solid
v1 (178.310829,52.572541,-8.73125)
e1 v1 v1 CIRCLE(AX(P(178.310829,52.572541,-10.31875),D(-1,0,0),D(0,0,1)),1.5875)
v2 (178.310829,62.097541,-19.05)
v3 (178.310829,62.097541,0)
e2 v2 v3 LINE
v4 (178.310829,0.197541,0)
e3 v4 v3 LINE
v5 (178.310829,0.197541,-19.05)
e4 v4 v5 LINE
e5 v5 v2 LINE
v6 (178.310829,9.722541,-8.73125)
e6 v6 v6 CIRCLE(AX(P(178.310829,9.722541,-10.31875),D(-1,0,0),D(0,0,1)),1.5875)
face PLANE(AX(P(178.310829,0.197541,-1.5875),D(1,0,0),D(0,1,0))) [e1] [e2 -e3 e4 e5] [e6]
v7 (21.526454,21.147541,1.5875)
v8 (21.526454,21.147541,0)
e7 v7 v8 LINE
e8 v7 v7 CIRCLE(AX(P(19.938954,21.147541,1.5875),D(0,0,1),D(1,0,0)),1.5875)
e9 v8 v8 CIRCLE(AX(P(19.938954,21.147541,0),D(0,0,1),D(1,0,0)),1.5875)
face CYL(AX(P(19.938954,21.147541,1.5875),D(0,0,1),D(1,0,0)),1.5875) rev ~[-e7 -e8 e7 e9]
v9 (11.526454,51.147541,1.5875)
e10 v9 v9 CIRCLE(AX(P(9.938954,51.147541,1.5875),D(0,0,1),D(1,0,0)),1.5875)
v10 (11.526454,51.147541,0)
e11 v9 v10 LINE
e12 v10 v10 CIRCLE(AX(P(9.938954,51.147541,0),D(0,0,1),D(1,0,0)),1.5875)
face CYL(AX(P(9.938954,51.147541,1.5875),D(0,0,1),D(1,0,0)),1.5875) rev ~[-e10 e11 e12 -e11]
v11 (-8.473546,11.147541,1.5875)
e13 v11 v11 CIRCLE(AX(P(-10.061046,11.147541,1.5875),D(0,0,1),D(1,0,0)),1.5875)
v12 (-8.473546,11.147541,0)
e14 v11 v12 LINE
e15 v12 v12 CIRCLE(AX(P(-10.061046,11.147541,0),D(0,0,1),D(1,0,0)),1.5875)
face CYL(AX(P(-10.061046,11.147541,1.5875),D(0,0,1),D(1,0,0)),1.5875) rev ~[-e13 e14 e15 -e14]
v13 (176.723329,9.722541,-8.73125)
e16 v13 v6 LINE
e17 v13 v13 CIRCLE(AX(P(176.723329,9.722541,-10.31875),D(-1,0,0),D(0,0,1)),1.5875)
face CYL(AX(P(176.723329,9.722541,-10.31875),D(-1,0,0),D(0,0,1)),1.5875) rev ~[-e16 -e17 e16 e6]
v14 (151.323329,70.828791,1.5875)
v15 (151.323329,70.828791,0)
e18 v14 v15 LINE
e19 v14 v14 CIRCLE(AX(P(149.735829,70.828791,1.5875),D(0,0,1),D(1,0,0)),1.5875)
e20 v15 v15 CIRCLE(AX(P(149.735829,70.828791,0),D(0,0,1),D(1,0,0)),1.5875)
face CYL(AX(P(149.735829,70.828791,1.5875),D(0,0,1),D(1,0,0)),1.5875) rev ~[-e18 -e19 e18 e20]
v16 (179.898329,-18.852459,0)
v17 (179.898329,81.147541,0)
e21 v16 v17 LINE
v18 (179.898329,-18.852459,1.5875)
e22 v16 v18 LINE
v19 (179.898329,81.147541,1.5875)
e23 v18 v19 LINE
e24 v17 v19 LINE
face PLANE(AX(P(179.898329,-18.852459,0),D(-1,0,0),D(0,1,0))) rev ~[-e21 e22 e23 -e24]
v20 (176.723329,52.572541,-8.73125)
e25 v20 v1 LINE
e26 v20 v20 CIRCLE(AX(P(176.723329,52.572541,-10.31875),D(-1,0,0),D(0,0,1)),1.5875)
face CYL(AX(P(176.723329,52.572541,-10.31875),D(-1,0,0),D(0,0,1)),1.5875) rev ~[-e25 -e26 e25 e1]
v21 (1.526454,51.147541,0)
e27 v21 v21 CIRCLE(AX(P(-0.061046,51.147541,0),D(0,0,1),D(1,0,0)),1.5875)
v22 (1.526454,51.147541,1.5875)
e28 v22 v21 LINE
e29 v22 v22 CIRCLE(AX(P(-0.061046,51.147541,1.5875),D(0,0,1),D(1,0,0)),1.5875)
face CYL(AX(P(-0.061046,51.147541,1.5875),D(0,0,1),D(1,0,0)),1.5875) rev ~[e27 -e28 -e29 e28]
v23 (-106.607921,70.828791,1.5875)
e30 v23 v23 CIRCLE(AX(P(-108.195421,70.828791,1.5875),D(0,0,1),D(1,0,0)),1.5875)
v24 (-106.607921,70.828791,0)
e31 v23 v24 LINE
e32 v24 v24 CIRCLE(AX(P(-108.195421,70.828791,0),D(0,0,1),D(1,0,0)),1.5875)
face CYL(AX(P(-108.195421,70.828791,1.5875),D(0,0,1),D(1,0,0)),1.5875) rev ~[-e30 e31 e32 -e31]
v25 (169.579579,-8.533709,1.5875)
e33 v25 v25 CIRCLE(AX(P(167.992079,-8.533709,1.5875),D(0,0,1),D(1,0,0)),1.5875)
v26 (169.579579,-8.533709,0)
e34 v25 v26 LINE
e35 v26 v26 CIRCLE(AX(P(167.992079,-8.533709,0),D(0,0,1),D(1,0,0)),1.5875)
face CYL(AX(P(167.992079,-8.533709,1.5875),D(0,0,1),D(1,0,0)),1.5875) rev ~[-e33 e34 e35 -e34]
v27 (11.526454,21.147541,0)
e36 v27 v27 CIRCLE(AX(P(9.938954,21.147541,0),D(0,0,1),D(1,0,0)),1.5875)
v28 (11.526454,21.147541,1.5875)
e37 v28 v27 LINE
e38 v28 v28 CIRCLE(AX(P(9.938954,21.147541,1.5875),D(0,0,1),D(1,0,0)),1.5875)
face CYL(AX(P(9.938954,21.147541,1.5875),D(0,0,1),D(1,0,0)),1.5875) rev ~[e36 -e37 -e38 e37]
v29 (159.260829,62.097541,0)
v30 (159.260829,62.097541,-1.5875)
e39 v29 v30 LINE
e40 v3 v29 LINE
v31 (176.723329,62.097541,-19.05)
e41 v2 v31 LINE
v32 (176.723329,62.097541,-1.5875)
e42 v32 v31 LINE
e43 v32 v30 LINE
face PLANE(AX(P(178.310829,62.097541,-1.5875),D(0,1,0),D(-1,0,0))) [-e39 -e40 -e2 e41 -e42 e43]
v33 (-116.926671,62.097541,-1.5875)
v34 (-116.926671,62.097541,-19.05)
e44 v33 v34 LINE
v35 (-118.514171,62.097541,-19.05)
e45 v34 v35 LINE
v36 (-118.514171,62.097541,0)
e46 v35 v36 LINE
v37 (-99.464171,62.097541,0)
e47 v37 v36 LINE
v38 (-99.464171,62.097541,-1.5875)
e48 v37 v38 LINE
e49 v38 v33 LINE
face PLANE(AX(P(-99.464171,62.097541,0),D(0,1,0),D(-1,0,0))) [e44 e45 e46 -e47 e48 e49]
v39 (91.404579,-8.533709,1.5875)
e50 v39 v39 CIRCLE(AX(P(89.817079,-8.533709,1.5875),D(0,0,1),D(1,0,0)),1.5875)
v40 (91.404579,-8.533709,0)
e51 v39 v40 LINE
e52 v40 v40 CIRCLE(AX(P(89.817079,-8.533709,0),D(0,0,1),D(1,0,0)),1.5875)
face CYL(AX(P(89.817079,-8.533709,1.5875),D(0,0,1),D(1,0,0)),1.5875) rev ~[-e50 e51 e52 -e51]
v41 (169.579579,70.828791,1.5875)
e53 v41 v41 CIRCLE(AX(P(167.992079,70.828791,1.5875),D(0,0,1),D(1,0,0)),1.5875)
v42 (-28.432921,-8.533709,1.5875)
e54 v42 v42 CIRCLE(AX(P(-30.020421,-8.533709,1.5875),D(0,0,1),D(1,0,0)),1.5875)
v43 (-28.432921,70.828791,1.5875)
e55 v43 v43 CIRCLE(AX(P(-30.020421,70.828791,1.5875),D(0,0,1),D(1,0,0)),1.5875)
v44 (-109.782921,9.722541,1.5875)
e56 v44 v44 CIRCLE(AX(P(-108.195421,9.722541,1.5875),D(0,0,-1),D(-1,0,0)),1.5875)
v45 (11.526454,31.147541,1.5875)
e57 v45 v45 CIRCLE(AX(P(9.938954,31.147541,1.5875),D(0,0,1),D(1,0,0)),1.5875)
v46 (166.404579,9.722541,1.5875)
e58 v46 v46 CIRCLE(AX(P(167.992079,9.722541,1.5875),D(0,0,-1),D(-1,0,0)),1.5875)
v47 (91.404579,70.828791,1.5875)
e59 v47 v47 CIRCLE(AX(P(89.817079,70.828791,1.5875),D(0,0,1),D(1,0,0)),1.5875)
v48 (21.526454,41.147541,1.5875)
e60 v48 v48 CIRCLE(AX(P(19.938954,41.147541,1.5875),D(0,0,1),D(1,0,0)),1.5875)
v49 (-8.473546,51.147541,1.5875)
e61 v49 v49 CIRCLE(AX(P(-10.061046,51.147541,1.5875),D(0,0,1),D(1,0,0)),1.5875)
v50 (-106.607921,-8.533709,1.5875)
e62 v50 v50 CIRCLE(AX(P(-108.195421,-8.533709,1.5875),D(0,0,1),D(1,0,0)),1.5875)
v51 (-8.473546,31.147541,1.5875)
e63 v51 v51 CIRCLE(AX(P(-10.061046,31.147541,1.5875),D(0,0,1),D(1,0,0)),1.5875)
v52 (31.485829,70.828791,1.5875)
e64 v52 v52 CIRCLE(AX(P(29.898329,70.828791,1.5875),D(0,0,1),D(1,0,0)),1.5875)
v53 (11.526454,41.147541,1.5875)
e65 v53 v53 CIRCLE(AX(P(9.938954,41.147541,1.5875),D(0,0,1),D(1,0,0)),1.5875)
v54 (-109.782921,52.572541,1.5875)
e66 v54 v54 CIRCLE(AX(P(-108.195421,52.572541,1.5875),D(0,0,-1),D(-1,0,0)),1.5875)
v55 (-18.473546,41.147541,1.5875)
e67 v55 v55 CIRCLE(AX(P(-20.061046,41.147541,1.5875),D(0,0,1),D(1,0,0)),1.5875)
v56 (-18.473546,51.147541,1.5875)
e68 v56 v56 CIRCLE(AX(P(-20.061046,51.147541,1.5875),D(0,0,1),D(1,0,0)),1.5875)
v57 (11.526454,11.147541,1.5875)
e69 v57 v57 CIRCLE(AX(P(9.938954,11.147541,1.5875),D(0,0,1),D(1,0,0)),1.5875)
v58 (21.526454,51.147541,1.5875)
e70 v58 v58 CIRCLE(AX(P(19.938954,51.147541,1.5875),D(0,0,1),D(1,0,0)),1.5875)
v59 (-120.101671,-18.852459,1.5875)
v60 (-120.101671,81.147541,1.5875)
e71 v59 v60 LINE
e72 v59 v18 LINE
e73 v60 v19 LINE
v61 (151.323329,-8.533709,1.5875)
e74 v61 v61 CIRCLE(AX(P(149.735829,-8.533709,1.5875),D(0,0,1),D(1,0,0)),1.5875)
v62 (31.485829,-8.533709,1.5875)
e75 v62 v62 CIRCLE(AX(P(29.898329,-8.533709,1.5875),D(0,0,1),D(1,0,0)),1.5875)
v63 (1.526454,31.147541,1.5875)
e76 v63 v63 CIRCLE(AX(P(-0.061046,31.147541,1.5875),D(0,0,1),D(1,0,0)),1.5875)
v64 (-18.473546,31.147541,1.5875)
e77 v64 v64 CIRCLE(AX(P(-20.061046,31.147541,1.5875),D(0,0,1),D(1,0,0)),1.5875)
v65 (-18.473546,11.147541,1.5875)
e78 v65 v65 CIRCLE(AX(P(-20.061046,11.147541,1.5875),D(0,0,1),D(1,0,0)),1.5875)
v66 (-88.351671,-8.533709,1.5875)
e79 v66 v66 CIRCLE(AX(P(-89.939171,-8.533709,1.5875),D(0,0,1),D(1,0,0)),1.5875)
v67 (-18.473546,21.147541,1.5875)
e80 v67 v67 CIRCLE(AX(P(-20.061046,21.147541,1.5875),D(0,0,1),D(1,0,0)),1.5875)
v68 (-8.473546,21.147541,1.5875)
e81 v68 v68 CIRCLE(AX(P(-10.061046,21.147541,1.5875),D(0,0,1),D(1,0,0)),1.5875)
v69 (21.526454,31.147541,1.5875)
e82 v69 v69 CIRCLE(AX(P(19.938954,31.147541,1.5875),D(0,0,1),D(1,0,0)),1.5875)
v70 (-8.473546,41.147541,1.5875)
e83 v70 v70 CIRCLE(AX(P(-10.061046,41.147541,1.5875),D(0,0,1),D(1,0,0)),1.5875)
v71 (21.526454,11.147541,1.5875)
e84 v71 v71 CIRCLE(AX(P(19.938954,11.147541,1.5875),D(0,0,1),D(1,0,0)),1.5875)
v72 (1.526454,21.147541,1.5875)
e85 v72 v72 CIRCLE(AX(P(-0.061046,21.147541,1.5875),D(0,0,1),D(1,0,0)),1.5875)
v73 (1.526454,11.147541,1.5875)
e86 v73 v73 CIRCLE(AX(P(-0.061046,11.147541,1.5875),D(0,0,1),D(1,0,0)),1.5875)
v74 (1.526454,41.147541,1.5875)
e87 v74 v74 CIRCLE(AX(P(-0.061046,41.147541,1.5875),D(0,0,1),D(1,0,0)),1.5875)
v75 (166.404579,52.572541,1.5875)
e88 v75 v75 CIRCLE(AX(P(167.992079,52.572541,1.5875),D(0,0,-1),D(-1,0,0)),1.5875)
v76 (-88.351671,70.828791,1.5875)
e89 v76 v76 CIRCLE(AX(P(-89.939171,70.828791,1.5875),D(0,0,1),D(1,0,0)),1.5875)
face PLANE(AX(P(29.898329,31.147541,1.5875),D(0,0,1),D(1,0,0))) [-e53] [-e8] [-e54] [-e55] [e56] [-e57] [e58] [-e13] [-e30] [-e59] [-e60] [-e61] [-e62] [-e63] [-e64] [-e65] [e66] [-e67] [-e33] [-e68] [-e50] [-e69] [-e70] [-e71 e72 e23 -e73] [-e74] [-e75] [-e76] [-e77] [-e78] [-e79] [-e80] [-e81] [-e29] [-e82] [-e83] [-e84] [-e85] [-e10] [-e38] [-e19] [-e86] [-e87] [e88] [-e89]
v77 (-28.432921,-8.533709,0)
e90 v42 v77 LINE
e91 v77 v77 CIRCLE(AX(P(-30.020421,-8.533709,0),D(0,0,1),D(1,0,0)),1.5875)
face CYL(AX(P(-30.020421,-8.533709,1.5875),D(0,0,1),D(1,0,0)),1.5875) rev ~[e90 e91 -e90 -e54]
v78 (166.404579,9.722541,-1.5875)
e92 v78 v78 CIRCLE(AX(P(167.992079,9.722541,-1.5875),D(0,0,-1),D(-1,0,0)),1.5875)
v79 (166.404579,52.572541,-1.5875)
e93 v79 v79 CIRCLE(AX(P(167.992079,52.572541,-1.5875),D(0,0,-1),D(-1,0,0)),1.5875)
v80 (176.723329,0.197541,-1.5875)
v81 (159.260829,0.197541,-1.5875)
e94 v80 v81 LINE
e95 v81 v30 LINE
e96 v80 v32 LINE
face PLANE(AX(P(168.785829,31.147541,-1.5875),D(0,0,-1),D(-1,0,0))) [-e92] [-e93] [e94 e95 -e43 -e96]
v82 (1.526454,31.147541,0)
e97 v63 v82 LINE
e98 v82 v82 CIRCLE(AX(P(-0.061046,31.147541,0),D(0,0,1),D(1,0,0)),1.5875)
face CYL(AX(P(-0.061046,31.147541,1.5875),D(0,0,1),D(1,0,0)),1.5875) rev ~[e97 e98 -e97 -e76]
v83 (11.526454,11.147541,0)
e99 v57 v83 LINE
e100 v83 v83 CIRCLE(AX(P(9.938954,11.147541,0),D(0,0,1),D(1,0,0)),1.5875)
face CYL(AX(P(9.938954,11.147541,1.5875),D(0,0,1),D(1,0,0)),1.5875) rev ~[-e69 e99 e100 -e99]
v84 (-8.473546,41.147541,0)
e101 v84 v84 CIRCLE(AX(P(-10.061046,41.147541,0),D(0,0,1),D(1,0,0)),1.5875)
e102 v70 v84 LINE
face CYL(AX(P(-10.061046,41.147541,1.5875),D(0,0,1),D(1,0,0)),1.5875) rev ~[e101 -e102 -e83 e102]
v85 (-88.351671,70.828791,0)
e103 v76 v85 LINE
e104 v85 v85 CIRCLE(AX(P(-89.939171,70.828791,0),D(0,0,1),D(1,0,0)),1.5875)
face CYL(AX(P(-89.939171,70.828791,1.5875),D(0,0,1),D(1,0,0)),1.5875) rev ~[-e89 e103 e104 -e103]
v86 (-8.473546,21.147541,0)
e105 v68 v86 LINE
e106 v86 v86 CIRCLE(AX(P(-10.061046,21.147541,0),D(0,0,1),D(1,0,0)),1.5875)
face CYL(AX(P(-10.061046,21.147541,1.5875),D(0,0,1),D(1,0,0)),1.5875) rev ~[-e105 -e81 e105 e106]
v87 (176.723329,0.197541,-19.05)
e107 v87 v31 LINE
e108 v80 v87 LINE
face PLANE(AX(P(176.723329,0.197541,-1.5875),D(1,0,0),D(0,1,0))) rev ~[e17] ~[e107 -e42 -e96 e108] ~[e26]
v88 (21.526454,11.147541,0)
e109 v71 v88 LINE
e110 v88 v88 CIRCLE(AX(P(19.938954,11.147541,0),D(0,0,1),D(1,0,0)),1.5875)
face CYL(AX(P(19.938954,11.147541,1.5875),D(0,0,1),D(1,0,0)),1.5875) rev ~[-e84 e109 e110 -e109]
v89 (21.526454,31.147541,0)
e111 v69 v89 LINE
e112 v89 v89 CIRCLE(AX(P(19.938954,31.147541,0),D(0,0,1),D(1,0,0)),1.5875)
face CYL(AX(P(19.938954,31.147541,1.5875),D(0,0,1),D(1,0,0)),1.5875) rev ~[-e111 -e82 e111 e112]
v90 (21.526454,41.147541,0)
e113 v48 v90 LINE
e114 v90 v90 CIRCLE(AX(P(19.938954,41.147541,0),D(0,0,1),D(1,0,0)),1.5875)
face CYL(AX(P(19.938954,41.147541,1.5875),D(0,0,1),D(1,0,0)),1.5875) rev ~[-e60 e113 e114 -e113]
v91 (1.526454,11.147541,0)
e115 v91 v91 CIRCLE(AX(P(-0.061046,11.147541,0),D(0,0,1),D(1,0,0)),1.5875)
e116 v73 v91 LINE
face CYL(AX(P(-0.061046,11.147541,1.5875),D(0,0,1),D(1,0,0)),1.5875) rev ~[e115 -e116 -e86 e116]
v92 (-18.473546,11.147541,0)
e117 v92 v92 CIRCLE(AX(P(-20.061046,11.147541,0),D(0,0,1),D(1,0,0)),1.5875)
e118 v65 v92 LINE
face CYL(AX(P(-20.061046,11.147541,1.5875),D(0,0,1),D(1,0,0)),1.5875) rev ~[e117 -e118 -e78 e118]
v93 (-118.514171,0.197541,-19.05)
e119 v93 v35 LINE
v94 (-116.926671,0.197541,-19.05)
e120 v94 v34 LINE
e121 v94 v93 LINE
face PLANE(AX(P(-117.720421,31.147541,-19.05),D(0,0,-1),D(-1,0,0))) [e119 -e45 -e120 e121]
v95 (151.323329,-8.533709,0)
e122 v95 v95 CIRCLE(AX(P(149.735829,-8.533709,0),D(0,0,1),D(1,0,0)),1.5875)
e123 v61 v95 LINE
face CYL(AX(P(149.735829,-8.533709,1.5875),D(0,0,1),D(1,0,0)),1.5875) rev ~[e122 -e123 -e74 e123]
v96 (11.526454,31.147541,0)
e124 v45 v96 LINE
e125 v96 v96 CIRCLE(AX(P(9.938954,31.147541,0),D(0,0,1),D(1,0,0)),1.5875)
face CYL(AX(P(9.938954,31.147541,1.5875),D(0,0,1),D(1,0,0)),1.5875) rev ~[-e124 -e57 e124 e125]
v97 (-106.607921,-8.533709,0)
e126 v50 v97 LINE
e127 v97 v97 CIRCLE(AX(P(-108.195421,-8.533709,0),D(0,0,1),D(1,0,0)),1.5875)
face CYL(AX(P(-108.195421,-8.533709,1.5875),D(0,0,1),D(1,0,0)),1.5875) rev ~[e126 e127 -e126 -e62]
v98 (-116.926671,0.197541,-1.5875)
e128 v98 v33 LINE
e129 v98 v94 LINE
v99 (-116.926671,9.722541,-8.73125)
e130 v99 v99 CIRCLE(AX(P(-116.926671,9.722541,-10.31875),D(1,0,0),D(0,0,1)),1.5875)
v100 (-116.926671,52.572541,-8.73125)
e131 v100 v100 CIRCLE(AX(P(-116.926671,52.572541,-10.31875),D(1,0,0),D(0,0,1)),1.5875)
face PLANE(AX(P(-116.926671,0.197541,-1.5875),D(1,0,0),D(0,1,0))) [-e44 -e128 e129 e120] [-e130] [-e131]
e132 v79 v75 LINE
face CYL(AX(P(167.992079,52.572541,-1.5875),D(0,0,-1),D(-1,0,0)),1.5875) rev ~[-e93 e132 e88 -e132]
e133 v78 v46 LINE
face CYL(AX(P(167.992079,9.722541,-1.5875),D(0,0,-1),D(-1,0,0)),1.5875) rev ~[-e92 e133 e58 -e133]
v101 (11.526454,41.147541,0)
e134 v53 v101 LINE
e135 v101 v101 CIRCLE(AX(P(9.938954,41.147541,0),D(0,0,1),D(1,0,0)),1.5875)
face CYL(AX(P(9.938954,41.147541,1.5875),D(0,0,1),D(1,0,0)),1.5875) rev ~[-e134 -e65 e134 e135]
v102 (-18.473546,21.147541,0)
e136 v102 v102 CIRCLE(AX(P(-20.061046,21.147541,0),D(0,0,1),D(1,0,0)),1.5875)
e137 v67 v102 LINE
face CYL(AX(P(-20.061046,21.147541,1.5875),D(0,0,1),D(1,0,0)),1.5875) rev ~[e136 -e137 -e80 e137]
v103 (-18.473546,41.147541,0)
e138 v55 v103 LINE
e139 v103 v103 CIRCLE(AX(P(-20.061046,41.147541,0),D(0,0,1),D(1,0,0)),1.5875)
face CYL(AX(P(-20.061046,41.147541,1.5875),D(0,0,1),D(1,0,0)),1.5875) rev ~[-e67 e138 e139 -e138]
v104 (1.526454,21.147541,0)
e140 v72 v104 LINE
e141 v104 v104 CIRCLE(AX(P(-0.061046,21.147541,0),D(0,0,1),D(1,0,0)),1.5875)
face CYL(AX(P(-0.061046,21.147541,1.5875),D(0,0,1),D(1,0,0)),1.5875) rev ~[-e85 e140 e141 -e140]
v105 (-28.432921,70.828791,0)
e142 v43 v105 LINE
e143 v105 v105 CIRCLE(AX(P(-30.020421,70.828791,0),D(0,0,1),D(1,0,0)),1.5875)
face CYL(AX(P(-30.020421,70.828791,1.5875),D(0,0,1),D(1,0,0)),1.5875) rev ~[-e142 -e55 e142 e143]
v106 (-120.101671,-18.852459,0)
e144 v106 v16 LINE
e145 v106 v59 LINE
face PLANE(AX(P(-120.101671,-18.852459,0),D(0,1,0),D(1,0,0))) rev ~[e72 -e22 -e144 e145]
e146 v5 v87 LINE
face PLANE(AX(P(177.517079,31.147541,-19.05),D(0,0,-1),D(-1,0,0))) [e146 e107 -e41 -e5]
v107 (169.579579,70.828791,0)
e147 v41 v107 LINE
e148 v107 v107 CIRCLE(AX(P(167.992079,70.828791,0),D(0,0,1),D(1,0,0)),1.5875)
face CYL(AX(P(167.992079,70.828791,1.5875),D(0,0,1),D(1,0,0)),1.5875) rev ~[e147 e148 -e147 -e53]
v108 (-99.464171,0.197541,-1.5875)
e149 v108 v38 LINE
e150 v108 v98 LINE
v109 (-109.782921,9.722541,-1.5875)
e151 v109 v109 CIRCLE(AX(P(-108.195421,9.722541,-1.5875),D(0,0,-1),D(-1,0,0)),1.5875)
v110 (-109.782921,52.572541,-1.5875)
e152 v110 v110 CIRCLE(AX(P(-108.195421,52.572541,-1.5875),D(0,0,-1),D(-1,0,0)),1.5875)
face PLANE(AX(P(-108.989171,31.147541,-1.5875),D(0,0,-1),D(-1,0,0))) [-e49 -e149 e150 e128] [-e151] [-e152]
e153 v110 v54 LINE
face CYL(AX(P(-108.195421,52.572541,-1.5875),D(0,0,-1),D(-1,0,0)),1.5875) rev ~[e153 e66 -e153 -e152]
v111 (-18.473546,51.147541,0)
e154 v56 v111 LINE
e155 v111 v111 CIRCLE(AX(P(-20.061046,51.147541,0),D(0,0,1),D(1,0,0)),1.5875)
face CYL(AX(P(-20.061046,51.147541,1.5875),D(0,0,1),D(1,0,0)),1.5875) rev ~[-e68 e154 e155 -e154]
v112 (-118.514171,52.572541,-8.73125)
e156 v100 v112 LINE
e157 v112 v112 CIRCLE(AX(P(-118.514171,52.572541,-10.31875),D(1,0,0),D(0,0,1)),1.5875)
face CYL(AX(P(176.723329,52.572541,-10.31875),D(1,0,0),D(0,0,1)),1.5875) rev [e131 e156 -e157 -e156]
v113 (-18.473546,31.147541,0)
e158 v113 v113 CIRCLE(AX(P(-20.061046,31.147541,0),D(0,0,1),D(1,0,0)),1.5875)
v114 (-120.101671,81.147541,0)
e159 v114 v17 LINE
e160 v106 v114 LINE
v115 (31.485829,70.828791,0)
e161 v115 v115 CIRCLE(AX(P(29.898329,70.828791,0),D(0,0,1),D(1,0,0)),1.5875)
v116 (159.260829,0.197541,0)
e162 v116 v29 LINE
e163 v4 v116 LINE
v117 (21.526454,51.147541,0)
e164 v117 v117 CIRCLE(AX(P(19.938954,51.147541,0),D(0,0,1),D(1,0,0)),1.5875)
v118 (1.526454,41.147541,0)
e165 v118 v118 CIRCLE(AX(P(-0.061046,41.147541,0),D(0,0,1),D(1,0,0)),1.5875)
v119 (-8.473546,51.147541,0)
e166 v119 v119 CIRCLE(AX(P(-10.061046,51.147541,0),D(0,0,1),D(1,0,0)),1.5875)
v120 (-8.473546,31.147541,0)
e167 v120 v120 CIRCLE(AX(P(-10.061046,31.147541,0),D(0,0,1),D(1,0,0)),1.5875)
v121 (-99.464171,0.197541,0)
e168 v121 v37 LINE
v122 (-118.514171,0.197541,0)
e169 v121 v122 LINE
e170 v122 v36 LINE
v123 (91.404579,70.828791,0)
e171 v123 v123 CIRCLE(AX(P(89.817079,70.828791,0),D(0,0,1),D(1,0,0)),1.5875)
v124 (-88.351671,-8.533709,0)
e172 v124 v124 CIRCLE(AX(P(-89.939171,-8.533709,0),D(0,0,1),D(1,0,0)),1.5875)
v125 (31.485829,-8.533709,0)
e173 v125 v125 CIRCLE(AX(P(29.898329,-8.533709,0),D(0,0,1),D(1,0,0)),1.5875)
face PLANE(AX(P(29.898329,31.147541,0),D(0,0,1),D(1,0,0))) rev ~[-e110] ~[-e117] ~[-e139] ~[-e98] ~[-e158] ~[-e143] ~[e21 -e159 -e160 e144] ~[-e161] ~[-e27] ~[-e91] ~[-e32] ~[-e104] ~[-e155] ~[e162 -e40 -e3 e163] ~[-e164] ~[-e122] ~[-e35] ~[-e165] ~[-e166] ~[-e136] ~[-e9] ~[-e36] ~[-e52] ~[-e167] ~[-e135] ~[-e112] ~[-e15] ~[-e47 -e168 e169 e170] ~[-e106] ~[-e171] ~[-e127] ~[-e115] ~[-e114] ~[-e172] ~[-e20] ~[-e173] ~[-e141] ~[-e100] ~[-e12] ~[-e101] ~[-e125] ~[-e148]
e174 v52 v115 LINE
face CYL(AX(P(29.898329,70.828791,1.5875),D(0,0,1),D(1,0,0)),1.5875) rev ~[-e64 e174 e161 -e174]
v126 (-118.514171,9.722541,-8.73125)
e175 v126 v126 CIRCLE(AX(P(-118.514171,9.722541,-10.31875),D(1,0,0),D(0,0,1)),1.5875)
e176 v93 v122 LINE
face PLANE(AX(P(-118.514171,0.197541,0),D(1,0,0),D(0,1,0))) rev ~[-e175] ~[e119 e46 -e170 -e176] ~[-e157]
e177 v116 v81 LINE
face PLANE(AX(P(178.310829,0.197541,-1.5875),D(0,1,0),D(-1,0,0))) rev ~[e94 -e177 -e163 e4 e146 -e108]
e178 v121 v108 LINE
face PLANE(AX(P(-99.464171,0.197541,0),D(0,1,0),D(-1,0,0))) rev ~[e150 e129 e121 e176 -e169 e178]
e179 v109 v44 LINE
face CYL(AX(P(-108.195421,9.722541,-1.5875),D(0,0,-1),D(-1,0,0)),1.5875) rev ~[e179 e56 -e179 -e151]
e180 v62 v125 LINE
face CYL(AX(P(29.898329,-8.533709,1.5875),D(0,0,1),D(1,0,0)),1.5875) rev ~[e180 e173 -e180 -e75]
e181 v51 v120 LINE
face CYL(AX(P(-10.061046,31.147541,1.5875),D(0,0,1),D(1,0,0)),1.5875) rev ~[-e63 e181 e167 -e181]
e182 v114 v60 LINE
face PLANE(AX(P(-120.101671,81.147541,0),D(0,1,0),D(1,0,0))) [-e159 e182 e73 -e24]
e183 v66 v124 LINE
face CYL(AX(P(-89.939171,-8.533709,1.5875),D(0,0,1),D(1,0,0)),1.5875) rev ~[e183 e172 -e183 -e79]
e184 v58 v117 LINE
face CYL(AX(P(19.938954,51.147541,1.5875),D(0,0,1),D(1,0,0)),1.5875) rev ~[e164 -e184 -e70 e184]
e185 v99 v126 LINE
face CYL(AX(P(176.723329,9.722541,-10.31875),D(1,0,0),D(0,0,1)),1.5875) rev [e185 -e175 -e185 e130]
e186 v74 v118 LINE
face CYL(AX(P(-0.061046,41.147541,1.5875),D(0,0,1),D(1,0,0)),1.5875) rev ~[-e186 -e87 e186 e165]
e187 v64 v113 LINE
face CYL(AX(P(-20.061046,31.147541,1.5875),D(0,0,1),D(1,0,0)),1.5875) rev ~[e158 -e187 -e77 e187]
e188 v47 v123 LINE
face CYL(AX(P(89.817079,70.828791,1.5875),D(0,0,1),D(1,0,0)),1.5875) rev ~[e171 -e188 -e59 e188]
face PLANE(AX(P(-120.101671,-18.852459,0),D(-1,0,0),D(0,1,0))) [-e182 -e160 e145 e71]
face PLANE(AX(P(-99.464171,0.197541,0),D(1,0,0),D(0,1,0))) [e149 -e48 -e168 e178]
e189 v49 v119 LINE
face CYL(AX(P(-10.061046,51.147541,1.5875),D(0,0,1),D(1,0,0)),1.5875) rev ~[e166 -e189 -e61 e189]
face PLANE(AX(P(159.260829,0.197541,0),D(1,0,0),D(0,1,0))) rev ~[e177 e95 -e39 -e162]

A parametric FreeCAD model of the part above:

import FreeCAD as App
import Part
import Sketcher
from FreeCAD import Vector
Q = App.Units.Quantity


def add_polygon(sketch, points):
    """Adds a closed chain of lines whose ends are joined by coincident constraints."""
    first, n = sketch.GeometryCount, len(points)
    for a, b in zip(points, points[1:] + points[:1]):
        sketch.addGeometry(Part.LineSegment(App.Vector(*a, 0), App.Vector(*b, 0)), False)
    for i in range(n):
        sketch.addConstraint(Sketcher.Constraint("Coincident", first + i, 2, first + (i + 1) % n, 1))

doc = App.newDocument("Part")
body = doc.addObject("PartDesign::Body", "Body")

# Sketch on XY plane
sketch1 = body.newObject("Sketcher::SketchObject", "Sketch")
sketch1.AttachmentSupport = (doc.getObject("XY_Plane"), [""])
sketch1.MapMode = "FlatFace"
add_polygon(sketch1, [(-120, 81), (-120, -19), (180, -19), (180, 81)])  # lines 0-3
sketch1.addConstraint(Sketcher.Constraint("Vertical", 0))
sketch1.addConstraint(Sketcher.Constraint("Horizontal", 1))
sketch1.addConstraint(Sketcher.Constraint("Vertical", 2))
sketch1.addConstraint(Sketcher.Constraint("Horizontal", 3))
sketch1.addConstraint(Sketcher.Constraint("DistanceX", 1, 1, 1, 2, 300.0))
sketch1.addConstraint(Sketcher.Constraint("DistanceY", 0, 2, 0, 1, 100.0))
sketch1.addConstraint(Sketcher.Constraint("DistanceX", 0, 2, -1, 1, 120.101671))
sketch1.addConstraint(Sketcher.Constraint("DistanceY", 0, 2, -1, 1, 18.852459))
pad1 = body.newObject("PartDesign::Pad", "Pad")
pad1.Profile = sketch1
pad1.Length = Q("0.0625 in")

# Sketch on XY plane
sketch2 = body.newObject("Sketcher::SketchObject", "Sketch001")
sketch2.AttachmentSupport = (doc.getObject("XY_Plane"), [""])
sketch2.MapMode = "FlatFace"
add_polygon(sketch2, [(-99, 62), (-99, 0), (-119, 0), (-119, 62)])  # lines 0-3
add_polygon(sketch2, [(178, 62), (178, 0), (159, 0), (159, 62)])  # lines 4-7
sketch2.addConstraint(Sketcher.Constraint("Vertical", 0))
sketch2.addConstraint(Sketcher.Constraint("Horizontal", 1))
sketch2.addConstraint(Sketcher.Constraint("Vertical", 2))
sketch2.addConstraint(Sketcher.Constraint("Horizontal", 3))
sketch2.addConstraint(Sketcher.Constraint("Vertical", 4))
sketch2.addConstraint(Sketcher.Constraint("Horizontal", 5))
sketch2.addConstraint(Sketcher.Constraint("Vertical", 6))
sketch2.addConstraint(Sketcher.Constraint("Horizontal", 7))
sketch2.addConstraint(Sketcher.Constraint("Horizontal", 1, 2, 4, 2))
sketch2.addConstraint(Sketcher.Constraint("Horizontal", 3, 2, 6, 2))
sketch2.addConstraint(Sketcher.Constraint("Equal", 3, 5))
sketch2.addConstraint(Sketcher.Constraint("DistanceX", 1, 2, 1, 1, Q("0.75 in")))
sketch2.addConstraint(Sketcher.Constraint("DistanceY", 0, 2, 0, 1, 61.9))
sketch2.addConstraint(Sketcher.Constraint("DistanceX", 0, 2, 4, 2, 277.775))
sketch2.addConstraint(Sketcher.Constraint("DistanceX", 0, 2, -1, 1, 99.464171))
sketch2.addConstraint(Sketcher.Constraint("DistanceY", -1, 1, 0, 2, 0.197541))
pad2 = body.newObject("PartDesign::Pad", "Pad001")
pad2.Profile = sketch2
pad2.Length = Q("0.0625 in")
pad2.Reversed = True

# Sketch on XY plane
sketch3 = body.newObject("Sketcher::SketchObject", "Sketch002")
sketch3.AttachmentSupport = (doc.getObject("XY_Plane"), [""])
sketch3.MapMode = "FlatFace"
sketch3.AttachmentOffset = App.Placement(Vector(0, 0, -0.0625 * 25.4), App.Rotation())
add_polygon(sketch3, [(178.3, 62.1), (178.3, 0.2), (176.7, 0.2), (176.7, 62.1)])  # lines 0-3
add_polygon(sketch3, [(-116.9, 62.1), (-116.9, 0.2), (-118.5, 0.2), (-118.5, 62.1)])  # lines 4-7
sketch3.addConstraint(Sketcher.Constraint("Vertical", 0))
sketch3.addConstraint(Sketcher.Constraint("Horizontal", 1))
sketch3.addConstraint(Sketcher.Constraint("Vertical", 2))
sketch3.addConstraint(Sketcher.Constraint("Horizontal", 3))
sketch3.addConstraint(Sketcher.Constraint("Vertical", 4))
sketch3.addConstraint(Sketcher.Constraint("Horizontal", 5))
sketch3.addConstraint(Sketcher.Constraint("Vertical", 6))
sketch3.addConstraint(Sketcher.Constraint("Horizontal", 7))
sketch3.addConstraint(Sketcher.Constraint("Horizontal", 1, 2, 4, 2))
sketch3.addConstraint(Sketcher.Constraint("Horizontal", 3, 2, 6, 2))
sketch3.addConstraint(Sketcher.Constraint("Equal", 3, 5))
sketch3.addConstraint(Sketcher.Constraint("DistanceX", 1, 2, 1, 1, Q("0.0625 in")))
sketch3.addConstraint(Sketcher.Constraint("DistanceY", 0, 2, 0, 1, 61.9))
sketch3.addConstraint(Sketcher.Constraint("DistanceX", 4, 2, 1, 2, 293.65))
sketch3.addConstraint(Sketcher.Constraint("DistanceX", -1, 1, 0, 2, 178.310829))
sketch3.addConstraint(Sketcher.Constraint("DistanceY", -1, 1, 0, 2, 0.197541))
pad3 = body.newObject("PartDesign::Pad", "Pad002")
pad3.Profile = sketch3
pad3.Length = Q("0.6875 in")
pad3.Reversed = True

# Sketch on XY plane
sketch4 = body.newObject("Sketcher::SketchObject", "Sketch003")
sketch4.AttachmentSupport = (doc.getObject("XY_Plane"), [""])
sketch4.MapMode = "FlatFace"
sketch4.AttachmentOffset = App.Placement(Vector(0, 0, -0.0625 * 25.4), App.Rotation())
sketch4.addGeometry(Part.Circle(Vector(168, 52.6, 0), Vector(0, 0, 1), 1.6), False)
sketch4.addConstraint(Sketcher.Constraint("Diameter", 0, Q("0.125 in")))
sketch4.addConstraint(Sketcher.Constraint("DistanceX", -1, 1, 0, 3, 167.992079))
sketch4.addConstraint(Sketcher.Constraint("DistanceY", -1, 1, 0, 3, 52.572541))
pocket1 = body.newObject("PartDesign::Pocket", "Pocket")
pocket1.Profile = sketch4
pocket1.Type = "UpToFirst"
pocket1.Reversed = True

# Sketch on XY plane
sketch5 = body.newObject("Sketcher::SketchObject", "Sketch004")
sketch5.AttachmentSupport = (doc.getObject("XY_Plane"), [""])
sketch5.MapMode = "FlatFace"
sketch5.AttachmentOffset = App.Placement(Vector(0, 0, -0.0625 * 25.4), App.Rotation())
sketch5.addGeometry(Part.Circle(Vector(168, 9.7, 0), Vector(0, 0, 1), 1.6), False)
sketch5.addConstraint(Sketcher.Constraint("Diameter", 0, Q("0.125 in")))
sketch5.addConstraint(Sketcher.Constraint("DistanceX", -1, 1, 0, 3, 167.992079))
sketch5.addConstraint(Sketcher.Constraint("DistanceY", -1, 1, 0, 3, 9.722541))
pocket2 = body.newObject("PartDesign::Pocket", "Pocket001")
pocket2.Profile = sketch5
pocket2.Type = "UpToFirst"
pocket2.Reversed = True

# Sketch on XY plane
sketch6 = body.newObject("Sketcher::SketchObject", "Sketch005")
sketch6.AttachmentSupport = (doc.getObject("XY_Plane"), [""])
sketch6.MapMode = "FlatFace"
sketch6.AttachmentOffset = App.Placement(Vector(0, 0, -0.0625 * 25.4), App.Rotation())
sketch6.addGeometry(Part.Circle(Vector(-108.2, 52.6, 0), Vector(0, 0, 1), 1.6), False)
sketch6.addConstraint(Sketcher.Constraint("Diameter", 0, Q("0.125 in")))
sketch6.addConstraint(Sketcher.Constraint("DistanceX", 0, 3, -1, 1, 108.195421))
sketch6.addConstraint(Sketcher.Constraint("DistanceY", -1, 1, 0, 3, 52.572541))
pocket3 = body.newObject("PartDesign::Pocket", "Pocket002")
pocket3.Profile = sketch6
pocket3.Type = "UpToFirst"
pocket3.Reversed = True

# Sketch on XY plane
sketch7 = body.newObject("Sketcher::SketchObject", "Sketch006")
sketch7.AttachmentSupport = (doc.getObject("XY_Plane"), [""])
sketch7.MapMode = "FlatFace"
sketch7.AttachmentOffset = App.Placement(Vector(0, 0, -0.0625 * 25.4), App.Rotation())
sketch7.addGeometry(Part.Circle(Vector(-108.2, 9.7, 0), Vector(0, 0, 1), 1.6), False)
sketch7.addConstraint(Sketcher.Constraint("Diameter", 0, Q("0.125 in")))
sketch7.addConstraint(Sketcher.Constraint("DistanceX", 0, 3, -1, 1, 108.195421))
sketch7.addConstraint(Sketcher.Constraint("DistanceY", -1, 1, 0, 3, 9.722541))
pocket4 = body.newObject("PartDesign::Pocket", "Pocket003")
pocket4.Profile = sketch7
pocket4.Type = "UpToFirst"
pocket4.Reversed = True

# Sketch on XY plane
sketch8 = body.newObject("Sketcher::SketchObject", "Sketch007")
sketch8.AttachmentSupport = (doc.getObject("XY_Plane"), [""])
sketch8.MapMode = "FlatFace"
sketch8.AttachmentOffset = App.Placement(Vector(0, 0, 0.0625 * 25.4), App.Rotation())
sketch8.addGeometry(Part.Circle(Vector(-108.2, -8.5, 0), Vector(0, 0, 1), 1.6), False)
sketch8.addConstraint(Sketcher.Constraint("Diameter", 0, Q("0.125 in")))
sketch8.addConstraint(Sketcher.Constraint("DistanceX", 0, 3, -1, 1, 108.195421))
sketch8.addConstraint(Sketcher.Constraint("DistanceY", 0, 3, -1, 1, 8.533709))
pocket5 = body.newObject("PartDesign::Pocket", "Pocket004")
pocket5.Profile = sketch8
pocket5.Type = "UpToFirst"

# Sketch on XY plane
sketch9 = body.newObject("Sketcher::SketchObject", "Sketch008")
sketch9.AttachmentSupport = (doc.getObject("XY_Plane"), [""])
sketch9.MapMode = "FlatFace"
sketch9.AttachmentOffset = App.Placement(Vector(0, 0, 0.0625 * 25.4), App.Rotation())
sketch9.addGeometry(Part.Circle(Vector(-89.9, -8.5, 0), Vector(0, 0, 1), 1.6), False)
sketch9.addConstraint(Sketcher.Constraint("Diameter", 0, Q("0.125 in")))
sketch9.addConstraint(Sketcher.Constraint("DistanceX", 0, 3, -1, 1, 89.939171))
sketch9.addConstraint(Sketcher.Constraint("DistanceY", 0, 3, -1, 1, 8.533709))
pocket6 = body.newObject("PartDesign::Pocket", "Pocket005")
pocket6.Profile = sketch9
pocket6.Type = "UpToFirst"

# Sketch on XY plane
sketch10 = body.newObject("Sketcher::SketchObject", "Sketch009")
sketch10.AttachmentSupport = (doc.getObject("XY_Plane"), [""])
sketch10.MapMode = "FlatFace"
sketch10.AttachmentOffset = App.Placement(Vector(0, 0, 0.0625 * 25.4), App.Rotation())
sketch10.addGeometry(Part.Circle(Vector(-30, -8.5, 0), Vector(0, 0, 1), 1.6), False)
sketch10.addConstraint(Sketcher.Constraint("Diameter", 0, Q("0.125 in")))
sketch10.addConstraint(Sketcher.Constraint("DistanceX", 0, 3, -1, 1, 30.020421))
sketch10.addConstraint(Sketcher.Constraint("DistanceY", 0, 3, -1, 1, 8.533709))
pocket7 = body.newObject("PartDesign::Pocket", "Pocket006")
pocket7.Profile = sketch10
pocket7.Type = "UpToFirst"

# Sketch on XY plane
sketch11 = body.newObject("Sketcher::SketchObject", "Sketch010")
sketch11.AttachmentSupport = (doc.getObject("XY_Plane"), [""])
sketch11.MapMode = "FlatFace"
sketch11.AttachmentOffset = App.Placement(Vector(0, 0, 0.0625 * 25.4), App.Rotation())
sketch11.addGeometry(Part.Circle(Vector(29.9, -8.5, 0), Vector(0, 0, 1), 1.6), False)
sketch11.addConstraint(Sketcher.Constraint("Diameter", 0, Q("0.125 in")))
sketch11.addConstraint(Sketcher.Constraint("DistanceX", -1, 1, 0, 3, 29.898329))
sketch11.addConstraint(Sketcher.Constraint("DistanceY", 0, 3, -1, 1, 8.533709))
pocket8 = body.newObject("PartDesign::Pocket", "Pocket007")
pocket8.Profile = sketch11
pocket8.Type = "UpToFirst"

# Sketch on XY plane
sketch12 = body.newObject("Sketcher::SketchObject", "Sketch011")
sketch12.AttachmentSupport = (doc.getObject("XY_Plane"), [""])
sketch12.MapMode = "FlatFace"
sketch12.AttachmentOffset = App.Placement(Vector(0, 0, 0.0625 * 25.4), App.Rotation())
sketch12.addGeometry(Part.Circle(Vector(89.8, -8.5, 0), Vector(0, 0, 1), 1.6), False)
sketch12.addConstraint(Sketcher.Constraint("Diameter", 0, Q("0.125 in")))
sketch12.addConstraint(Sketcher.Constraint("DistanceX", -1, 1, 0, 3, 89.817079))
sketch12.addConstraint(Sketcher.Constraint("DistanceY", 0, 3, -1, 1, 8.533709))
pocket9 = body.newObject("PartDesign::Pocket", "Pocket008")
pocket9.Profile = sketch12
pocket9.Type = "UpToFirst"

# Sketch on XY plane
sketch13 = body.newObject("Sketcher::SketchObject", "Sketch012")
sketch13.AttachmentSupport = (doc.getObject("XY_Plane"), [""])
sketch13.MapMode = "FlatFace"
sketch13.AttachmentOffset = App.Placement(Vector(0, 0, 0.0625 * 25.4), App.Rotation())
sketch13.addGeometry(Part.Circle(Vector(149.7, -8.5, 0), Vector(0, 0, 1), 1.6), False)
sketch13.addConstraint(Sketcher.Constraint("Diameter", 0, Q("0.125 in")))
sketch13.addConstraint(Sketcher.Constraint("DistanceX", -1, 1, 0, 3, 149.735829))
sketch13.addConstraint(Sketcher.Constraint("DistanceY", 0, 3, -1, 1, 8.533709))
pocket10 = body.newObject("PartDesign::Pocket", "Pocket009")
pocket10.Profile = sketch13
pocket10.Type = "UpToFirst"

# Sketch on XY plane
sketch14 = body.newObject("Sketcher::SketchObject", "Sketch013")
sketch14.AttachmentSupport = (doc.getObject("XY_Plane"), [""])
sketch14.MapMode = "FlatFace"
sketch14.AttachmentOffset = App.Placement(Vector(0, 0, 0.0625 * 25.4), App.Rotation())
sketch14.addGeometry(Part.Circle(Vector(168, -8.5, 0), Vector(0, 0, 1), 1.6), False)
sketch14.addConstraint(Sketcher.Constraint("Diameter", 0, Q("0.125 in")))
sketch14.addConstraint(Sketcher.Constraint("DistanceX", -1, 1, 0, 3, 167.992079))
sketch14.addConstraint(Sketcher.Constraint("DistanceY", 0, 3, -1, 1, 8.533709))
pocket11 = body.newObject("PartDesign::Pocket", "Pocket010")
pocket11.Profile = sketch14
pocket11.Type = "UpToFirst"

# Sketch on XY plane
sketch15 = body.newObject("Sketcher::SketchObject", "Sketch014")
sketch15.AttachmentSupport = (doc.getObject("XY_Plane"), [""])
sketch15.MapMode = "FlatFace"
sketch15.AttachmentOffset = App.Placement(Vector(0, 0, 0.0625 * 25.4), App.Rotation())
sketch15.addGeometry(Part.Circle(Vector(168, 70.8, 0), Vector(0, 0, 1), 1.6), False)
sketch15.addConstraint(Sketcher.Constraint("Diameter", 0, Q("0.125 in")))
sketch15.addConstraint(Sketcher.Constraint("DistanceX", -1, 1, 0, 3, 167.992079))
sketch15.addConstraint(Sketcher.Constraint("DistanceY", -1, 1, 0, 3, 70.828791))
pocket12 = body.newObject("PartDesign::Pocket", "Pocket011")
pocket12.Profile = sketch15
pocket12.Type = "UpToFirst"

# Sketch on XY plane
sketch16 = body.newObject("Sketcher::SketchObject", "Sketch015")
sketch16.AttachmentSupport = (doc.getObject("XY_Plane"), [""])
sketch16.MapMode = "FlatFace"
sketch16.AttachmentOffset = App.Placement(Vector(0, 0, 0.0625 * 25.4), App.Rotation())
sketch16.addGeometry(Part.Circle(Vector(149.7, 70.8, 0), Vector(0, 0, 1), 1.6), False)
sketch16.addConstraint(Sketcher.Constraint("Diameter", 0, Q("0.125 in")))
sketch16.addConstraint(Sketcher.Constraint("DistanceX", -1, 1, 0, 3, 149.735829))
sketch16.addConstraint(Sketcher.Constraint("DistanceY", -1, 1, 0, 3, 70.828791))
pocket13 = body.newObject("PartDesign::Pocket", "Pocket012")
pocket13.Profile = sketch16
pocket13.Type = "UpToFirst"

# Sketch on XY plane
sketch17 = body.newObject("Sketcher::SketchObject", "Sketch016")
sketch17.AttachmentSupport = (doc.getObject("XY_Plane"), [""])
sketch17.MapMode = "FlatFace"
sketch17.AttachmentOffset = App.Placement(Vector(0, 0, 0.0625 * 25.4), App.Rotation())
sketch17.addGeometry(Part.Circle(Vector(89.8, 70.8, 0), Vector(0, 0, 1), 1.6), False)
sketch17.addConstraint(Sketcher.Constraint("Diameter", 0, Q("0.125 in")))
sketch17.addConstraint(Sketcher.Constraint("DistanceX", -1, 1, 0, 3, 89.817079))
sketch17.addConstraint(Sketcher.Constraint("DistanceY", -1, 1, 0, 3, 70.828791))
pocket14 = body.newObject("PartDesign::Pocket", "Pocket013")
pocket14.Profile = sketch17
pocket14.Type = "UpToFirst"

# Sketch on XY plane
sketch18 = body.newObject("Sketcher::SketchObject", "Sketch017")
sketch18.AttachmentSupport = (doc.getObject("XY_Plane"), [""])
sketch18.MapMode = "FlatFace"
sketch18.AttachmentOffset = App.Placement(Vector(0, 0, 0.0625 * 25.4), App.Rotation())
sketch18.addGeometry(Part.Circle(Vector(29.9, 70.8, 0), Vector(0, 0, 1), 1.6), False)
sketch18.addConstraint(Sketcher.Constraint("Diameter", 0, Q("0.125 in")))
sketch18.addConstraint(Sketcher.Constraint("DistanceX", -1, 1, 0, 3, 29.898329))
sketch18.addConstraint(Sketcher.Constraint("DistanceY", -1, 1, 0, 3, 70.828791))
pocket15 = body.newObject("PartDesign::Pocket", "Pocket014")
pocket15.Profile = sketch18
pocket15.Type = "UpToFirst"

# Sketch on XY plane
sketch19 = body.newObject("Sketcher::SketchObject", "Sketch018")
sketch19.AttachmentSupport = (doc.getObject("XY_Plane"), [""])
sketch19.MapMode = "FlatFace"
sketch19.AttachmentOffset = App.Placement(Vector(0, 0, 0.0625 * 25.4), App.Rotation())
sketch19.addGeometry(Part.Circle(Vector(-30, 70.8, 0), Vector(0, 0, 1), 1.6), False)
sketch19.addConstraint(Sketcher.Constraint("Diameter", 0, Q("0.125 in")))
sketch19.addConstraint(Sketcher.Constraint("DistanceX", 0, 3, -1, 1, 30.020421))
sketch19.addConstraint(Sketcher.Constraint("DistanceY", -1, 1, 0, 3, 70.828791))
pocket16 = body.newObject("PartDesign::Pocket", "Pocket015")
pocket16.Profile = sketch19
pocket16.Type = "UpToFirst"

# Sketch on XY plane
sketch20 = body.newObject("Sketcher::SketchObject", "Sketch019")
sketch20.AttachmentSupport = (doc.getObject("XY_Plane"), [""])
sketch20.MapMode = "FlatFace"
sketch20.AttachmentOffset = App.Placement(Vector(0, 0, 0.0625 * 25.4), App.Rotation())
sketch20.addGeometry(Part.Circle(Vector(-89.9, 70.8, 0), Vector(0, 0, 1), 1.6), False)
sketch20.addConstraint(Sketcher.Constraint("Diameter", 0, Q("0.125 in")))
sketch20.addConstraint(Sketcher.Constraint("DistanceX", 0, 3, -1, 1, 89.939171))
sketch20.addConstraint(Sketcher.Constraint("DistanceY", -1, 1, 0, 3, 70.828791))
pocket17 = body.newObject("PartDesign::Pocket", "Pocket016")
pocket17.Profile = sketch20
pocket17.Type = "UpToFirst"

# Sketch on XY plane
sketch21 = body.newObject("Sketcher::SketchObject", "Sketch020")
sketch21.AttachmentSupport = (doc.getObject("XY_Plane"), [""])
sketch21.MapMode = "FlatFace"
sketch21.AttachmentOffset = App.Placement(Vector(0, 0, 0.0625 * 25.4), App.Rotation())
sketch21.addGeometry(Part.Circle(Vector(-108.2, 70.8, 0), Vector(0, 0, 1), 1.6), False)
sketch21.addConstraint(Sketcher.Constraint("Diameter", 0, Q("0.125 in")))
sketch21.addConstraint(Sketcher.Constraint("DistanceX", 0, 3, -1, 1, 108.195421))
sketch21.addConstraint(Sketcher.Constraint("DistanceY", -1, 1, 0, 3, 70.828791))
pocket18 = body.newObject("PartDesign::Pocket", "Pocket017")
pocket18.Profile = sketch21
pocket18.Type = "UpToFirst"

# Sketch on YZ plane
sketch22 = body.newObject("Sketcher::SketchObject", "Sketch021")
sketch22.AttachmentSupport = (doc.getObject("YZ_Plane"), [""])
sketch22.MapMode = "FlatFace"
sketch22.AttachmentOffset = App.Placement(Vector(0, 0, 176.723329), App.Rotation())
sketch22.addGeometry(Part.Circle(Vector(52.6, -10.3, 0), Vector(0, 0, 1), 1.6), False)
sketch22.addGeometry(Part.Circle(Vector(9.7, -10.3, 0), Vector(0, 0, 1), 1.6), False)
sketch22.addConstraint(Sketcher.Constraint("Equal", 0, 1))
sketch22.addConstraint(Sketcher.Constraint("Horizontal", 0, 3, 1, 3))
sketch22.addConstraint(Sketcher.Constraint("Diameter", 0, Q("0.125 in")))
sketch22.addConstraint(Sketcher.Constraint("DistanceY", 0, 3, -1, 1, Q("0.40625 in")))
sketch22.addConstraint(Sketcher.Constraint("DistanceX", 1, 3, 0, 3, 42.85))
sketch22.addConstraint(Sketcher.Constraint("DistanceX", -1, 1, 0, 3, 52.572541))
pocket19 = body.newObject("PartDesign::Pocket", "Pocket018")
pocket19.Profile = sketch22
pocket19.Type = "ThroughAll"
pocket19.Midplane = True

# Sketch on XY plane
sketch23 = body.newObject("Sketcher::SketchObject", "Sketch022")
sketch23.AttachmentSupport = (doc.getObject("XY_Plane"), [""])
sketch23.MapMode = "FlatFace"
sketch23.AttachmentOffset = App.Placement(Vector(0, 0, 0.0625 * 25.4), App.Rotation())
sketch23.addGeometry(Part.Circle(Vector(-20.1, 11.1, 0), Vector(0, 0, 1), 1.6), False)
sketch23.addGeometry(Part.Circle(Vector(-10.1, 11.1, 0), Vector(0, 0, 1), 1.6), False)
sketch23.addGeometry(Part.Circle(Vector(-0.1, 11.1, 0), Vector(0, 0, 1), 1.6), False)
sketch23.addGeometry(Part.Circle(Vector(9.9, 11.1, 0), Vector(0, 0, 1), 1.6), False)
sketch23.addGeometry(Part.Circle(Vector(19.9, 11.1, 0), Vector(0, 0, 1), 1.6), False)
sketch23.addGeometry(Part.Circle(Vector(-10.1, 21.1, 0), Vector(0, 0, 1), 1.6), False)
sketch23.addGeometry(Part.Circle(Vector(-0.1, 21.1, 0), Vector(0, 0, 1), 1.6), False)
sketch23.addGeometry(Part.Circle(Vector(9.9, 21.1, 0), Vector(0, 0, 1), 1.6), False)
sketch23.addGeometry(Part.Circle(Vector(19.9, 21.1, 0), Vector(0, 0, 1), 1.6), False)
sketch23.addGeometry(Part.Circle(Vector(-10.1, 31.1, 0), Vector(0, 0, 1), 1.6), False)
sketch23.addGeometry(Part.Circle(Vector(-0.1, 31.1, 0), Vector(0, 0, 1), 1.6), False)
sketch23.addGeometry(Part.Circle(Vector(9.9, 31.1, 0), Vector(0, 0, 1), 1.6), False)
sketch23.addGeometry(Part.Circle(Vector(19.9, 31.1, 0), Vector(0, 0, 1), 1.6), False)
sketch23.addGeometry(Part.Circle(Vector(-10.1, 41.1, 0), Vector(0, 0, 1), 1.6), False)
sketch23.addGeometry(Part.Circle(Vector(-0.1, 41.1, 0), Vector(0, 0, 1), 1.6), False)
sketch23.addGeometry(Part.Circle(Vector(9.9, 41.1, 0), Vector(0, 0, 1), 1.6), False)
sketch23.addGeometry(Part.Circle(Vector(19.9, 41.1, 0), Vector(0, 0, 1), 1.6), False)
sketch23.addGeometry(Part.Circle(Vector(-10.1, 51.1, 0), Vector(0, 0, 1), 1.6), False)
sketch23.addGeometry(Part.Circle(Vector(-0.1, 51.1, 0), Vector(0, 0, 1), 1.6), False)
sketch23.addGeometry(Part.Circle(Vector(9.9, 51.1, 0), Vector(0, 0, 1), 1.6), False)
sketch23.addGeometry(Part.Circle(Vector(19.9, 51.1, 0), Vector(0, 0, 1), 1.6), False)
sketch23.addGeometry(Part.Circle(Vector(-20.1, 21.1, 0), Vector(0, 0, 1), 1.6), False)
sketch23.addGeometry(Part.Circle(Vector(-20.1, 31.1, 0), Vector(0, 0, 1), 1.6), False)
sketch23.addGeometry(Part.Circle(Vector(-20.1, 41.1, 0), Vector(0, 0, 1), 1.6), False)
sketch23.addGeometry(Part.Circle(Vector(-20.1, 51.1, 0), Vector(0, 0, 1), 1.6), False)
sketch23.addConstraint(Sketcher.Constraint("Equal", 0, 1))
sketch23.addConstraint(Sketcher.Constraint("Equal", 1, 2))
sketch23.addConstraint(Sketcher.Constraint("Equal", 2, 3))
sketch23.addConstraint(Sketcher.Constraint("Equal", 3, 4))
sketch23.addConstraint(Sketcher.Constraint("Equal", 4, 5))
sketch23.addConstraint(Sketcher.Constraint("Equal", 5, 6))
sketch23.addConstraint(Sketcher.Constraint("Equal", 6, 7))
sketch23.addConstraint(Sketcher.Constraint("Equal", 7, 8))
sketch23.addConstraint(Sketcher.Constraint("Equal", 8, 9))
sketch23.addConstraint(Sketcher.Constraint("Equal", 9, 10))
sketch23.addConstraint(Sketcher.Constraint("Equal", 10, 11))
sketch23.addConstraint(Sketcher.Constraint("Equal", 11, 12))
sketch23.addConstraint(Sketcher.Constraint("Equal", 12, 13))
sketch23.addConstraint(Sketcher.Constraint("Equal", 13, 14))
sketch23.addConstraint(Sketcher.Constraint("Equal", 14, 15))
sketch23.addConstraint(Sketcher.Constraint("Equal", 15, 16))
sketch23.addConstraint(Sketcher.Constraint("Equal", 16, 17))
sketch23.addConstraint(Sketcher.Constraint("Equal", 17, 18))
sketch23.addConstraint(Sketcher.Constraint("Equal", 18, 19))
sketch23.addConstraint(Sketcher.Constraint("Equal", 19, 20))
sketch23.addConstraint(Sketcher.Constraint("Equal", 20, 21))
sketch23.addConstraint(Sketcher.Constraint("Equal", 21, 22))
sketch23.addConstraint(Sketcher.Constraint("Equal", 22, 23))
sketch23.addConstraint(Sketcher.Constraint("Equal", 23, 24))
sketch23.addConstraint(Sketcher.Constraint("Horizontal", 0, 3, 1, 3))
sketch23.addConstraint(Sketcher.Constraint("Horizontal", 1, 3, 2, 3))
sketch23.addConstraint(Sketcher.Constraint("Horizontal", 2, 3, 3, 3))
sketch23.addConstraint(Sketcher.Constraint("Horizontal", 3, 3, 4, 3))
sketch23.addConstraint(Sketcher.Constraint("Horizontal", 5, 3, 6, 3))
sketch23.addConstraint(Sketcher.Constraint("Horizontal", 6, 3, 7, 3))
sketch23.addConstraint(Sketcher.Constraint("Horizontal", 7, 3, 8, 3))
sketch23.addConstraint(Sketcher.Constraint("Horizontal", 9, 3, 10, 3))
sketch23.addConstraint(Sketcher.Constraint("Horizontal", 10, 3, 11, 3))
sketch23.addConstraint(Sketcher.Constraint("Horizontal", 11, 3, 12, 3))
sketch23.addConstraint(Sketcher.Constraint("Horizontal", 13, 3, 14, 3))
sketch23.addConstraint(Sketcher.Constraint("Horizontal", 14, 3, 15, 3))
sketch23.addConstraint(Sketcher.Constraint("Horizontal", 15, 3, 16, 3))
sketch23.addConstraint(Sketcher.Constraint("Horizontal", 17, 3, 18, 3))
sketch23.addConstraint(Sketcher.Constraint("Horizontal", 18, 3, 19, 3))
sketch23.addConstraint(Sketcher.Constraint("Horizontal", 19, 3, 20, 3))
sketch23.addConstraint(Sketcher.Constraint("Horizontal", 8, 3, 21, 3))
sketch23.addConstraint(Sketcher.Constraint("Horizontal", 12, 3, 22, 3))
sketch23.addConstraint(Sketcher.Constraint("Horizontal", 16, 3, 23, 3))
sketch23.addConstraint(Sketcher.Constraint("Horizontal", 20, 3, 24, 3))
sketch23.addConstraint(Sketcher.Constraint("Vertical", 1, 3, 5, 3))
sketch23.addConstraint(Sketcher.Constraint("Vertical", 2, 3, 6, 3))
sketch23.addConstraint(Sketcher.Constraint("Vertical", 3, 3, 7, 3))
sketch23.addConstraint(Sketcher.Constraint("Vertical", 4, 3, 8, 3))
sketch23.addConstraint(Sketcher.Constraint("Vertical", 5, 3, 9, 3))
sketch23.addConstraint(Sketcher.Constraint("Vertical", 6, 3, 10, 3))
sketch23.addConstraint(Sketcher.Constraint("Vertical", 7, 3, 11, 3))
sketch23.addConstraint(Sketcher.Constraint("Vertical", 8, 3, 12, 3))
sketch23.addConstraint(Sketcher.Constraint("Vertical", 9, 3, 13, 3))
sketch23.addConstraint(Sketcher.Constraint("Vertical", 10, 3, 14, 3))
sketch23.addConstraint(Sketcher.Constraint("Vertical", 11, 3, 15, 3))
sketch23.addConstraint(Sketcher.Constraint("Vertical", 12, 3, 16, 3))
sketch23.addConstraint(Sketcher.Constraint("Vertical", 13, 3, 17, 3))
sketch23.addConstraint(Sketcher.Constraint("Vertical", 14, 3, 18, 3))
sketch23.addConstraint(Sketcher.Constraint("Vertical", 15, 3, 19, 3))
sketch23.addConstraint(Sketcher.Constraint("Vertical", 16, 3, 20, 3))
sketch23.addConstraint(Sketcher.Constraint("Vertical", 0, 3, 21, 3))
sketch23.addConstraint(Sketcher.Constraint("Vertical", 21, 3, 22, 3))
sketch23.addConstraint(Sketcher.Constraint("Vertical", 22, 3, 23, 3))
sketch23.addConstraint(Sketcher.Constraint("Vertical", 23, 3, 24, 3))
sketch23.addConstraint(Sketcher.Constraint("Diameter", 0, Q("0.125 in")))
sketch23.addConstraint(Sketcher.Constraint("DistanceX", 0, 3, 1, 3, 10.0))
sketch23.addConstraint(Sketcher.Constraint("DistanceX", 1, 3, 2, 3, 10.0))
sketch23.addConstraint(Sketcher.Constraint("DistanceX", 2, 3, 3, 3, 10.0))
sketch23.addConstraint(Sketcher.Constraint("DistanceX", 3, 3, 4, 3, 10.0))
sketch23.addConstraint(Sketcher.Constraint("DistanceY", 1, 3, 5, 3, 10.0))
sketch23.addConstraint(Sketcher.Constraint("DistanceY", 5, 3, 9, 3, 10.0))
sketch23.addConstraint(Sketcher.Constraint("DistanceY", 9, 3, 13, 3, 10.0))
sketch23.addConstraint(Sketcher.Constraint("DistanceY", 13, 3, 17, 3, 10.0))
sketch23.addConstraint(Sketcher.Constraint("DistanceY", -1, 1, 0, 3, 11.147541))
sketch23.addConstraint(Sketcher.Constraint("DistanceX", 0, 3, -1, 1, 20.061046))
pocket20 = body.newObject("PartDesign::Pocket", "Pocket019")
pocket20.Profile = sketch23
pocket20.Length = Q("0.0625 in")

doc.recompute()
